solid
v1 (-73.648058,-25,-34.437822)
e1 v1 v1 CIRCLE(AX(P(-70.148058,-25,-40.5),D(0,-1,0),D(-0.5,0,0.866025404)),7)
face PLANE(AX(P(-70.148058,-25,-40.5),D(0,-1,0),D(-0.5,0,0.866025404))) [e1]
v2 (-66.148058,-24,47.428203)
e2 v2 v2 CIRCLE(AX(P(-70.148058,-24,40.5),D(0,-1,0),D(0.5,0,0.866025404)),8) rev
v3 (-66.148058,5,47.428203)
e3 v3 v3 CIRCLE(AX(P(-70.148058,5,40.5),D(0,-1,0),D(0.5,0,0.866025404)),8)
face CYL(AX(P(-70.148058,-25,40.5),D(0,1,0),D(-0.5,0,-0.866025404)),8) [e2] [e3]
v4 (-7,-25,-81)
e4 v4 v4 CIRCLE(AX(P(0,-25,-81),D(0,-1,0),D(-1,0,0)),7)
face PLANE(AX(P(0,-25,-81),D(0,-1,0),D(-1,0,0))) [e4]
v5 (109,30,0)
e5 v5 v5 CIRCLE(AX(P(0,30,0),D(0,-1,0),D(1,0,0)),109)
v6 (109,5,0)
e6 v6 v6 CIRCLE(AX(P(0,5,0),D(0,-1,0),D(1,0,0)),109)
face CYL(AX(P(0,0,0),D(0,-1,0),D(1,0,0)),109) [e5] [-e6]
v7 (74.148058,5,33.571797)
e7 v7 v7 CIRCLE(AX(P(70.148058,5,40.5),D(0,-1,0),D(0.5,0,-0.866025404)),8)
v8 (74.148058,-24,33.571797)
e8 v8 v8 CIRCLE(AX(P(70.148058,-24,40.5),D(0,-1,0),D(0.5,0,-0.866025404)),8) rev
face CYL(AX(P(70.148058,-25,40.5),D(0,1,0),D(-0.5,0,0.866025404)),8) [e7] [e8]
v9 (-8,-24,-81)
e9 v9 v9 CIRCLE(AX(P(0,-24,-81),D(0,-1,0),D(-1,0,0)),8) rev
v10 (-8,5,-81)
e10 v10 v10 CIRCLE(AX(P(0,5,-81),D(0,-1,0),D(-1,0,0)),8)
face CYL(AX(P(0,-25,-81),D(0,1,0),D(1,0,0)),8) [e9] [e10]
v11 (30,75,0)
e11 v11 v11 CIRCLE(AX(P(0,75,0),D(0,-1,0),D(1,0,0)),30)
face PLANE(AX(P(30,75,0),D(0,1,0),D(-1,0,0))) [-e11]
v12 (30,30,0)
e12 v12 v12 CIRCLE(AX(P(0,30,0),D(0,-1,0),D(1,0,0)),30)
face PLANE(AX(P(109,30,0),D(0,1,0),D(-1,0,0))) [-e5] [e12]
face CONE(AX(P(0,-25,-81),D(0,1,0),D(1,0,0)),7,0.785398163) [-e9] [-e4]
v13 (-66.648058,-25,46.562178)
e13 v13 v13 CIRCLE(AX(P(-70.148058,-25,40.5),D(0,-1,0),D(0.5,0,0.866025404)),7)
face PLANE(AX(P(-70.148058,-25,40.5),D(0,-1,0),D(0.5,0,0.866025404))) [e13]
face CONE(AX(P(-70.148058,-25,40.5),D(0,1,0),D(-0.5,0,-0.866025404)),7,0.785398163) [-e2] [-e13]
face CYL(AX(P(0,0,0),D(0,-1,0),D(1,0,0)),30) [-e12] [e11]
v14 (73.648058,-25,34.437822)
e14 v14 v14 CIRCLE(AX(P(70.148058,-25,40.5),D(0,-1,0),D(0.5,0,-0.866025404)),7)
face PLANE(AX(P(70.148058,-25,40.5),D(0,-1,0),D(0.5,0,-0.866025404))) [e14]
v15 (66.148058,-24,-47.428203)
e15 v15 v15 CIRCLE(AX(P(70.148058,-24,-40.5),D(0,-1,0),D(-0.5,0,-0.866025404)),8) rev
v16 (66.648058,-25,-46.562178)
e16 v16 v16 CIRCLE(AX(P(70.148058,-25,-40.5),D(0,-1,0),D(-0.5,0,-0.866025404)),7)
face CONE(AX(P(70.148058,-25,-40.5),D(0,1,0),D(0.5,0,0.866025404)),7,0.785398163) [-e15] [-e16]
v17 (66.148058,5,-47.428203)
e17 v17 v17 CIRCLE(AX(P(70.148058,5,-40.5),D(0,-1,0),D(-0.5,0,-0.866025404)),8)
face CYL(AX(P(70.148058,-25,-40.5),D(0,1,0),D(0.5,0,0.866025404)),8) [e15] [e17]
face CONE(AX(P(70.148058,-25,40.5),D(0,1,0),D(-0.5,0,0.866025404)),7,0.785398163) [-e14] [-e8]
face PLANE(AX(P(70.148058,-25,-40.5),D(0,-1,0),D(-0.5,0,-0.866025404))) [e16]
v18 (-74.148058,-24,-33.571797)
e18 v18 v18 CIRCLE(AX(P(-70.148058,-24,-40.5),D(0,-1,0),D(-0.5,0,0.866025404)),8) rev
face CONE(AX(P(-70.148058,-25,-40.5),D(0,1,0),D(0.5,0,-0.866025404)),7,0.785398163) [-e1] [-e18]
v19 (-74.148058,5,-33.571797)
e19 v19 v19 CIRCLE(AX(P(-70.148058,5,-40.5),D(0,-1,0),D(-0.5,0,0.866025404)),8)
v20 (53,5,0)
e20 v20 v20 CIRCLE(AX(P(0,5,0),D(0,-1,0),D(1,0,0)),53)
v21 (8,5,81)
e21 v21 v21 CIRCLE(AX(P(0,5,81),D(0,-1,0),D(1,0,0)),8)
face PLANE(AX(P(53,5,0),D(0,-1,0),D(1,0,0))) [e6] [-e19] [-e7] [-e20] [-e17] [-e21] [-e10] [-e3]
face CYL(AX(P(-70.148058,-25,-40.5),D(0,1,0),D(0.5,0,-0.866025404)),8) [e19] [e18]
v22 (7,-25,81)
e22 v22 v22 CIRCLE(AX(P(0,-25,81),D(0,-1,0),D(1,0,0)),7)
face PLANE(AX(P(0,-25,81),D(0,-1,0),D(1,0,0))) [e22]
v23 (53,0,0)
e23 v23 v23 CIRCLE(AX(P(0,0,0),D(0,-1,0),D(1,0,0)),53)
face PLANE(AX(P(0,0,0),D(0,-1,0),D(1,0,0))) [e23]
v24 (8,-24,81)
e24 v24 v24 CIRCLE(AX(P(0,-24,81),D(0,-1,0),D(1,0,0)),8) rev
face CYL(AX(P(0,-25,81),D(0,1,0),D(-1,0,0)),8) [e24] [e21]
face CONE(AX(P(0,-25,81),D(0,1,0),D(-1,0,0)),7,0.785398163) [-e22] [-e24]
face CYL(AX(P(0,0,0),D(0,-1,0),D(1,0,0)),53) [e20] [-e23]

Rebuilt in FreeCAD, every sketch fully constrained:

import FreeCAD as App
import Part
import Sketcher
from FreeCAD import Vector


def edges_at(feature, points):
    """Names of the edges that pass closest to the given points."""
    edges = feature.Shape.Edges
    near = lambda p: min(range(len(edges)), key=lambda i: edges[i].distToShape(Part.Vertex(*p))[0])
    return sorted({f"Edge{near(p) + 1}" for p in points})


def add_polygon(sketch, points):
    """Adds a closed chain of lines whose ends are joined by coincident constraints."""
    first, n = sketch.GeometryCount, len(points)
    for a, b in zip(points, points[1:] + points[:1]):
        sketch.addGeometry(Part.LineSegment(App.Vector(*a, 0), App.Vector(*b, 0)), False)
    for i in range(n):
        sketch.addConstraint(Sketcher.Constraint("Coincident", first + i, 2, first + (i + 1) % n, 1))

doc = App.newDocument("Part")
body = doc.addObject("PartDesign::Body", "Body")

sketch1 = doc.addObject("Sketcher::SketchObject", "Sketch")
body.addObject(sketch1)
sketch1.AttachmentSupport = (doc.XY_Plane, [""])
sketch1.MapMode = "FlatFace"
add_polygon(sketch1, [(0, 0), (53, 0), (53, 5), (109, 5), (109, 30), (30, 30), (30, 75), (0, 75)])
sketch1.addConstraint([
    Sketcher.Constraint("Horizontal", 0),
    Sketcher.Constraint("Vertical", 1),
    Sketcher.Constraint("Horizontal", 2),
    Sketcher.Constraint("Vertical", 3),
    Sketcher.Constraint("Horizontal", 4),
    Sketcher.Constraint("Vertical", 5),
    Sketcher.Constraint("Horizontal", 6),
    Sketcher.Constraint("Vertical", 7),
    Sketcher.Constraint("Coincident", 7, 2, -1, 1),
    Sketcher.Constraint("DistanceX", 0, 1, 0, 2, 53.0),
    Sketcher.Constraint("DistanceX", 2, 1, 2, 2, 56.0),
    Sketcher.Constraint("DistanceX", 4, 2, 4, 1, 79.0),
    Sketcher.Constraint("DistanceY", 1, 1, 1, 2, 5.0),
    Sketcher.Constraint("DistanceY", 3, 1, 3, 2, 25.0),
    Sketcher.Constraint("DistanceY", 5, 1, 5, 2, 45.0),
])
revolution = doc.addObject("PartDesign::Revolution", "Revolution")
body.addObject(revolution)
revolution.Profile = sketch1
revolution.ReferenceAxis = (sketch1, ["V_Axis"])
revolution.Angle = 360

sketch2 = doc.addObject("Sketcher::SketchObject", "Sketch001")
body.addObject(sketch2)
sketch2.AttachmentSupport = (doc.XZ_Plane, [""])
sketch2.MapMode = "FlatFace"
sketch2.AttachmentOffset = App.Placement(Vector(0, 0, -5), App.Rotation())
sketch2.addGeometry(Part.Circle(Vector(0, 81, 0), Vector(0, 0, 1), 8), False)
sketch2.addConstraint([
    Sketcher.Constraint("PointOnObject", 0, 3, -2),
    Sketcher.Constraint("Diameter", 0, 16.0),
    Sketcher.Constraint("DistanceY", -1, 1, 0, 3, 81.0),
])
pad1 = doc.addObject("PartDesign::Pad", "Pad")
body.addObject(pad1)
pad1.Profile = sketch2
pad1.Length = 30
doc.recompute()

chamfer = doc.addObject("PartDesign::Chamfer", "Chamfer")
body.addObject(chamfer)
chamfer.Base = (pad1, edges_at(pad1, [(-8, -25, 81)]))
chamfer.Size = 1
doc.recompute()

polarpattern = doc.addObject("PartDesign::PolarPattern", "PolarPattern")
body.addObject(polarpattern)
polarpattern.Originals = [pad1]
polarpattern.Axis = (doc.Y_Axis, [""])
polarpattern.Angle = 360
polarpattern.Occurrences = 6
body.Tip = polarpattern
doc.recompute()

chamfer2 = doc.addObject("PartDesign::Chamfer", "Chamfer001")
body.addObject(chamfer2)
chamfer2.Base = (polarpattern, edges_at(polarpattern, [
    (66.148, -25, 47.428),
    (74.148, -25, -33.572),
    (8, -25, -81),
    (-66.148, -25, -47.428),
    (-74.148, -25, 33.572),
]))
chamfer2.Size = 1

doc.recompute()
